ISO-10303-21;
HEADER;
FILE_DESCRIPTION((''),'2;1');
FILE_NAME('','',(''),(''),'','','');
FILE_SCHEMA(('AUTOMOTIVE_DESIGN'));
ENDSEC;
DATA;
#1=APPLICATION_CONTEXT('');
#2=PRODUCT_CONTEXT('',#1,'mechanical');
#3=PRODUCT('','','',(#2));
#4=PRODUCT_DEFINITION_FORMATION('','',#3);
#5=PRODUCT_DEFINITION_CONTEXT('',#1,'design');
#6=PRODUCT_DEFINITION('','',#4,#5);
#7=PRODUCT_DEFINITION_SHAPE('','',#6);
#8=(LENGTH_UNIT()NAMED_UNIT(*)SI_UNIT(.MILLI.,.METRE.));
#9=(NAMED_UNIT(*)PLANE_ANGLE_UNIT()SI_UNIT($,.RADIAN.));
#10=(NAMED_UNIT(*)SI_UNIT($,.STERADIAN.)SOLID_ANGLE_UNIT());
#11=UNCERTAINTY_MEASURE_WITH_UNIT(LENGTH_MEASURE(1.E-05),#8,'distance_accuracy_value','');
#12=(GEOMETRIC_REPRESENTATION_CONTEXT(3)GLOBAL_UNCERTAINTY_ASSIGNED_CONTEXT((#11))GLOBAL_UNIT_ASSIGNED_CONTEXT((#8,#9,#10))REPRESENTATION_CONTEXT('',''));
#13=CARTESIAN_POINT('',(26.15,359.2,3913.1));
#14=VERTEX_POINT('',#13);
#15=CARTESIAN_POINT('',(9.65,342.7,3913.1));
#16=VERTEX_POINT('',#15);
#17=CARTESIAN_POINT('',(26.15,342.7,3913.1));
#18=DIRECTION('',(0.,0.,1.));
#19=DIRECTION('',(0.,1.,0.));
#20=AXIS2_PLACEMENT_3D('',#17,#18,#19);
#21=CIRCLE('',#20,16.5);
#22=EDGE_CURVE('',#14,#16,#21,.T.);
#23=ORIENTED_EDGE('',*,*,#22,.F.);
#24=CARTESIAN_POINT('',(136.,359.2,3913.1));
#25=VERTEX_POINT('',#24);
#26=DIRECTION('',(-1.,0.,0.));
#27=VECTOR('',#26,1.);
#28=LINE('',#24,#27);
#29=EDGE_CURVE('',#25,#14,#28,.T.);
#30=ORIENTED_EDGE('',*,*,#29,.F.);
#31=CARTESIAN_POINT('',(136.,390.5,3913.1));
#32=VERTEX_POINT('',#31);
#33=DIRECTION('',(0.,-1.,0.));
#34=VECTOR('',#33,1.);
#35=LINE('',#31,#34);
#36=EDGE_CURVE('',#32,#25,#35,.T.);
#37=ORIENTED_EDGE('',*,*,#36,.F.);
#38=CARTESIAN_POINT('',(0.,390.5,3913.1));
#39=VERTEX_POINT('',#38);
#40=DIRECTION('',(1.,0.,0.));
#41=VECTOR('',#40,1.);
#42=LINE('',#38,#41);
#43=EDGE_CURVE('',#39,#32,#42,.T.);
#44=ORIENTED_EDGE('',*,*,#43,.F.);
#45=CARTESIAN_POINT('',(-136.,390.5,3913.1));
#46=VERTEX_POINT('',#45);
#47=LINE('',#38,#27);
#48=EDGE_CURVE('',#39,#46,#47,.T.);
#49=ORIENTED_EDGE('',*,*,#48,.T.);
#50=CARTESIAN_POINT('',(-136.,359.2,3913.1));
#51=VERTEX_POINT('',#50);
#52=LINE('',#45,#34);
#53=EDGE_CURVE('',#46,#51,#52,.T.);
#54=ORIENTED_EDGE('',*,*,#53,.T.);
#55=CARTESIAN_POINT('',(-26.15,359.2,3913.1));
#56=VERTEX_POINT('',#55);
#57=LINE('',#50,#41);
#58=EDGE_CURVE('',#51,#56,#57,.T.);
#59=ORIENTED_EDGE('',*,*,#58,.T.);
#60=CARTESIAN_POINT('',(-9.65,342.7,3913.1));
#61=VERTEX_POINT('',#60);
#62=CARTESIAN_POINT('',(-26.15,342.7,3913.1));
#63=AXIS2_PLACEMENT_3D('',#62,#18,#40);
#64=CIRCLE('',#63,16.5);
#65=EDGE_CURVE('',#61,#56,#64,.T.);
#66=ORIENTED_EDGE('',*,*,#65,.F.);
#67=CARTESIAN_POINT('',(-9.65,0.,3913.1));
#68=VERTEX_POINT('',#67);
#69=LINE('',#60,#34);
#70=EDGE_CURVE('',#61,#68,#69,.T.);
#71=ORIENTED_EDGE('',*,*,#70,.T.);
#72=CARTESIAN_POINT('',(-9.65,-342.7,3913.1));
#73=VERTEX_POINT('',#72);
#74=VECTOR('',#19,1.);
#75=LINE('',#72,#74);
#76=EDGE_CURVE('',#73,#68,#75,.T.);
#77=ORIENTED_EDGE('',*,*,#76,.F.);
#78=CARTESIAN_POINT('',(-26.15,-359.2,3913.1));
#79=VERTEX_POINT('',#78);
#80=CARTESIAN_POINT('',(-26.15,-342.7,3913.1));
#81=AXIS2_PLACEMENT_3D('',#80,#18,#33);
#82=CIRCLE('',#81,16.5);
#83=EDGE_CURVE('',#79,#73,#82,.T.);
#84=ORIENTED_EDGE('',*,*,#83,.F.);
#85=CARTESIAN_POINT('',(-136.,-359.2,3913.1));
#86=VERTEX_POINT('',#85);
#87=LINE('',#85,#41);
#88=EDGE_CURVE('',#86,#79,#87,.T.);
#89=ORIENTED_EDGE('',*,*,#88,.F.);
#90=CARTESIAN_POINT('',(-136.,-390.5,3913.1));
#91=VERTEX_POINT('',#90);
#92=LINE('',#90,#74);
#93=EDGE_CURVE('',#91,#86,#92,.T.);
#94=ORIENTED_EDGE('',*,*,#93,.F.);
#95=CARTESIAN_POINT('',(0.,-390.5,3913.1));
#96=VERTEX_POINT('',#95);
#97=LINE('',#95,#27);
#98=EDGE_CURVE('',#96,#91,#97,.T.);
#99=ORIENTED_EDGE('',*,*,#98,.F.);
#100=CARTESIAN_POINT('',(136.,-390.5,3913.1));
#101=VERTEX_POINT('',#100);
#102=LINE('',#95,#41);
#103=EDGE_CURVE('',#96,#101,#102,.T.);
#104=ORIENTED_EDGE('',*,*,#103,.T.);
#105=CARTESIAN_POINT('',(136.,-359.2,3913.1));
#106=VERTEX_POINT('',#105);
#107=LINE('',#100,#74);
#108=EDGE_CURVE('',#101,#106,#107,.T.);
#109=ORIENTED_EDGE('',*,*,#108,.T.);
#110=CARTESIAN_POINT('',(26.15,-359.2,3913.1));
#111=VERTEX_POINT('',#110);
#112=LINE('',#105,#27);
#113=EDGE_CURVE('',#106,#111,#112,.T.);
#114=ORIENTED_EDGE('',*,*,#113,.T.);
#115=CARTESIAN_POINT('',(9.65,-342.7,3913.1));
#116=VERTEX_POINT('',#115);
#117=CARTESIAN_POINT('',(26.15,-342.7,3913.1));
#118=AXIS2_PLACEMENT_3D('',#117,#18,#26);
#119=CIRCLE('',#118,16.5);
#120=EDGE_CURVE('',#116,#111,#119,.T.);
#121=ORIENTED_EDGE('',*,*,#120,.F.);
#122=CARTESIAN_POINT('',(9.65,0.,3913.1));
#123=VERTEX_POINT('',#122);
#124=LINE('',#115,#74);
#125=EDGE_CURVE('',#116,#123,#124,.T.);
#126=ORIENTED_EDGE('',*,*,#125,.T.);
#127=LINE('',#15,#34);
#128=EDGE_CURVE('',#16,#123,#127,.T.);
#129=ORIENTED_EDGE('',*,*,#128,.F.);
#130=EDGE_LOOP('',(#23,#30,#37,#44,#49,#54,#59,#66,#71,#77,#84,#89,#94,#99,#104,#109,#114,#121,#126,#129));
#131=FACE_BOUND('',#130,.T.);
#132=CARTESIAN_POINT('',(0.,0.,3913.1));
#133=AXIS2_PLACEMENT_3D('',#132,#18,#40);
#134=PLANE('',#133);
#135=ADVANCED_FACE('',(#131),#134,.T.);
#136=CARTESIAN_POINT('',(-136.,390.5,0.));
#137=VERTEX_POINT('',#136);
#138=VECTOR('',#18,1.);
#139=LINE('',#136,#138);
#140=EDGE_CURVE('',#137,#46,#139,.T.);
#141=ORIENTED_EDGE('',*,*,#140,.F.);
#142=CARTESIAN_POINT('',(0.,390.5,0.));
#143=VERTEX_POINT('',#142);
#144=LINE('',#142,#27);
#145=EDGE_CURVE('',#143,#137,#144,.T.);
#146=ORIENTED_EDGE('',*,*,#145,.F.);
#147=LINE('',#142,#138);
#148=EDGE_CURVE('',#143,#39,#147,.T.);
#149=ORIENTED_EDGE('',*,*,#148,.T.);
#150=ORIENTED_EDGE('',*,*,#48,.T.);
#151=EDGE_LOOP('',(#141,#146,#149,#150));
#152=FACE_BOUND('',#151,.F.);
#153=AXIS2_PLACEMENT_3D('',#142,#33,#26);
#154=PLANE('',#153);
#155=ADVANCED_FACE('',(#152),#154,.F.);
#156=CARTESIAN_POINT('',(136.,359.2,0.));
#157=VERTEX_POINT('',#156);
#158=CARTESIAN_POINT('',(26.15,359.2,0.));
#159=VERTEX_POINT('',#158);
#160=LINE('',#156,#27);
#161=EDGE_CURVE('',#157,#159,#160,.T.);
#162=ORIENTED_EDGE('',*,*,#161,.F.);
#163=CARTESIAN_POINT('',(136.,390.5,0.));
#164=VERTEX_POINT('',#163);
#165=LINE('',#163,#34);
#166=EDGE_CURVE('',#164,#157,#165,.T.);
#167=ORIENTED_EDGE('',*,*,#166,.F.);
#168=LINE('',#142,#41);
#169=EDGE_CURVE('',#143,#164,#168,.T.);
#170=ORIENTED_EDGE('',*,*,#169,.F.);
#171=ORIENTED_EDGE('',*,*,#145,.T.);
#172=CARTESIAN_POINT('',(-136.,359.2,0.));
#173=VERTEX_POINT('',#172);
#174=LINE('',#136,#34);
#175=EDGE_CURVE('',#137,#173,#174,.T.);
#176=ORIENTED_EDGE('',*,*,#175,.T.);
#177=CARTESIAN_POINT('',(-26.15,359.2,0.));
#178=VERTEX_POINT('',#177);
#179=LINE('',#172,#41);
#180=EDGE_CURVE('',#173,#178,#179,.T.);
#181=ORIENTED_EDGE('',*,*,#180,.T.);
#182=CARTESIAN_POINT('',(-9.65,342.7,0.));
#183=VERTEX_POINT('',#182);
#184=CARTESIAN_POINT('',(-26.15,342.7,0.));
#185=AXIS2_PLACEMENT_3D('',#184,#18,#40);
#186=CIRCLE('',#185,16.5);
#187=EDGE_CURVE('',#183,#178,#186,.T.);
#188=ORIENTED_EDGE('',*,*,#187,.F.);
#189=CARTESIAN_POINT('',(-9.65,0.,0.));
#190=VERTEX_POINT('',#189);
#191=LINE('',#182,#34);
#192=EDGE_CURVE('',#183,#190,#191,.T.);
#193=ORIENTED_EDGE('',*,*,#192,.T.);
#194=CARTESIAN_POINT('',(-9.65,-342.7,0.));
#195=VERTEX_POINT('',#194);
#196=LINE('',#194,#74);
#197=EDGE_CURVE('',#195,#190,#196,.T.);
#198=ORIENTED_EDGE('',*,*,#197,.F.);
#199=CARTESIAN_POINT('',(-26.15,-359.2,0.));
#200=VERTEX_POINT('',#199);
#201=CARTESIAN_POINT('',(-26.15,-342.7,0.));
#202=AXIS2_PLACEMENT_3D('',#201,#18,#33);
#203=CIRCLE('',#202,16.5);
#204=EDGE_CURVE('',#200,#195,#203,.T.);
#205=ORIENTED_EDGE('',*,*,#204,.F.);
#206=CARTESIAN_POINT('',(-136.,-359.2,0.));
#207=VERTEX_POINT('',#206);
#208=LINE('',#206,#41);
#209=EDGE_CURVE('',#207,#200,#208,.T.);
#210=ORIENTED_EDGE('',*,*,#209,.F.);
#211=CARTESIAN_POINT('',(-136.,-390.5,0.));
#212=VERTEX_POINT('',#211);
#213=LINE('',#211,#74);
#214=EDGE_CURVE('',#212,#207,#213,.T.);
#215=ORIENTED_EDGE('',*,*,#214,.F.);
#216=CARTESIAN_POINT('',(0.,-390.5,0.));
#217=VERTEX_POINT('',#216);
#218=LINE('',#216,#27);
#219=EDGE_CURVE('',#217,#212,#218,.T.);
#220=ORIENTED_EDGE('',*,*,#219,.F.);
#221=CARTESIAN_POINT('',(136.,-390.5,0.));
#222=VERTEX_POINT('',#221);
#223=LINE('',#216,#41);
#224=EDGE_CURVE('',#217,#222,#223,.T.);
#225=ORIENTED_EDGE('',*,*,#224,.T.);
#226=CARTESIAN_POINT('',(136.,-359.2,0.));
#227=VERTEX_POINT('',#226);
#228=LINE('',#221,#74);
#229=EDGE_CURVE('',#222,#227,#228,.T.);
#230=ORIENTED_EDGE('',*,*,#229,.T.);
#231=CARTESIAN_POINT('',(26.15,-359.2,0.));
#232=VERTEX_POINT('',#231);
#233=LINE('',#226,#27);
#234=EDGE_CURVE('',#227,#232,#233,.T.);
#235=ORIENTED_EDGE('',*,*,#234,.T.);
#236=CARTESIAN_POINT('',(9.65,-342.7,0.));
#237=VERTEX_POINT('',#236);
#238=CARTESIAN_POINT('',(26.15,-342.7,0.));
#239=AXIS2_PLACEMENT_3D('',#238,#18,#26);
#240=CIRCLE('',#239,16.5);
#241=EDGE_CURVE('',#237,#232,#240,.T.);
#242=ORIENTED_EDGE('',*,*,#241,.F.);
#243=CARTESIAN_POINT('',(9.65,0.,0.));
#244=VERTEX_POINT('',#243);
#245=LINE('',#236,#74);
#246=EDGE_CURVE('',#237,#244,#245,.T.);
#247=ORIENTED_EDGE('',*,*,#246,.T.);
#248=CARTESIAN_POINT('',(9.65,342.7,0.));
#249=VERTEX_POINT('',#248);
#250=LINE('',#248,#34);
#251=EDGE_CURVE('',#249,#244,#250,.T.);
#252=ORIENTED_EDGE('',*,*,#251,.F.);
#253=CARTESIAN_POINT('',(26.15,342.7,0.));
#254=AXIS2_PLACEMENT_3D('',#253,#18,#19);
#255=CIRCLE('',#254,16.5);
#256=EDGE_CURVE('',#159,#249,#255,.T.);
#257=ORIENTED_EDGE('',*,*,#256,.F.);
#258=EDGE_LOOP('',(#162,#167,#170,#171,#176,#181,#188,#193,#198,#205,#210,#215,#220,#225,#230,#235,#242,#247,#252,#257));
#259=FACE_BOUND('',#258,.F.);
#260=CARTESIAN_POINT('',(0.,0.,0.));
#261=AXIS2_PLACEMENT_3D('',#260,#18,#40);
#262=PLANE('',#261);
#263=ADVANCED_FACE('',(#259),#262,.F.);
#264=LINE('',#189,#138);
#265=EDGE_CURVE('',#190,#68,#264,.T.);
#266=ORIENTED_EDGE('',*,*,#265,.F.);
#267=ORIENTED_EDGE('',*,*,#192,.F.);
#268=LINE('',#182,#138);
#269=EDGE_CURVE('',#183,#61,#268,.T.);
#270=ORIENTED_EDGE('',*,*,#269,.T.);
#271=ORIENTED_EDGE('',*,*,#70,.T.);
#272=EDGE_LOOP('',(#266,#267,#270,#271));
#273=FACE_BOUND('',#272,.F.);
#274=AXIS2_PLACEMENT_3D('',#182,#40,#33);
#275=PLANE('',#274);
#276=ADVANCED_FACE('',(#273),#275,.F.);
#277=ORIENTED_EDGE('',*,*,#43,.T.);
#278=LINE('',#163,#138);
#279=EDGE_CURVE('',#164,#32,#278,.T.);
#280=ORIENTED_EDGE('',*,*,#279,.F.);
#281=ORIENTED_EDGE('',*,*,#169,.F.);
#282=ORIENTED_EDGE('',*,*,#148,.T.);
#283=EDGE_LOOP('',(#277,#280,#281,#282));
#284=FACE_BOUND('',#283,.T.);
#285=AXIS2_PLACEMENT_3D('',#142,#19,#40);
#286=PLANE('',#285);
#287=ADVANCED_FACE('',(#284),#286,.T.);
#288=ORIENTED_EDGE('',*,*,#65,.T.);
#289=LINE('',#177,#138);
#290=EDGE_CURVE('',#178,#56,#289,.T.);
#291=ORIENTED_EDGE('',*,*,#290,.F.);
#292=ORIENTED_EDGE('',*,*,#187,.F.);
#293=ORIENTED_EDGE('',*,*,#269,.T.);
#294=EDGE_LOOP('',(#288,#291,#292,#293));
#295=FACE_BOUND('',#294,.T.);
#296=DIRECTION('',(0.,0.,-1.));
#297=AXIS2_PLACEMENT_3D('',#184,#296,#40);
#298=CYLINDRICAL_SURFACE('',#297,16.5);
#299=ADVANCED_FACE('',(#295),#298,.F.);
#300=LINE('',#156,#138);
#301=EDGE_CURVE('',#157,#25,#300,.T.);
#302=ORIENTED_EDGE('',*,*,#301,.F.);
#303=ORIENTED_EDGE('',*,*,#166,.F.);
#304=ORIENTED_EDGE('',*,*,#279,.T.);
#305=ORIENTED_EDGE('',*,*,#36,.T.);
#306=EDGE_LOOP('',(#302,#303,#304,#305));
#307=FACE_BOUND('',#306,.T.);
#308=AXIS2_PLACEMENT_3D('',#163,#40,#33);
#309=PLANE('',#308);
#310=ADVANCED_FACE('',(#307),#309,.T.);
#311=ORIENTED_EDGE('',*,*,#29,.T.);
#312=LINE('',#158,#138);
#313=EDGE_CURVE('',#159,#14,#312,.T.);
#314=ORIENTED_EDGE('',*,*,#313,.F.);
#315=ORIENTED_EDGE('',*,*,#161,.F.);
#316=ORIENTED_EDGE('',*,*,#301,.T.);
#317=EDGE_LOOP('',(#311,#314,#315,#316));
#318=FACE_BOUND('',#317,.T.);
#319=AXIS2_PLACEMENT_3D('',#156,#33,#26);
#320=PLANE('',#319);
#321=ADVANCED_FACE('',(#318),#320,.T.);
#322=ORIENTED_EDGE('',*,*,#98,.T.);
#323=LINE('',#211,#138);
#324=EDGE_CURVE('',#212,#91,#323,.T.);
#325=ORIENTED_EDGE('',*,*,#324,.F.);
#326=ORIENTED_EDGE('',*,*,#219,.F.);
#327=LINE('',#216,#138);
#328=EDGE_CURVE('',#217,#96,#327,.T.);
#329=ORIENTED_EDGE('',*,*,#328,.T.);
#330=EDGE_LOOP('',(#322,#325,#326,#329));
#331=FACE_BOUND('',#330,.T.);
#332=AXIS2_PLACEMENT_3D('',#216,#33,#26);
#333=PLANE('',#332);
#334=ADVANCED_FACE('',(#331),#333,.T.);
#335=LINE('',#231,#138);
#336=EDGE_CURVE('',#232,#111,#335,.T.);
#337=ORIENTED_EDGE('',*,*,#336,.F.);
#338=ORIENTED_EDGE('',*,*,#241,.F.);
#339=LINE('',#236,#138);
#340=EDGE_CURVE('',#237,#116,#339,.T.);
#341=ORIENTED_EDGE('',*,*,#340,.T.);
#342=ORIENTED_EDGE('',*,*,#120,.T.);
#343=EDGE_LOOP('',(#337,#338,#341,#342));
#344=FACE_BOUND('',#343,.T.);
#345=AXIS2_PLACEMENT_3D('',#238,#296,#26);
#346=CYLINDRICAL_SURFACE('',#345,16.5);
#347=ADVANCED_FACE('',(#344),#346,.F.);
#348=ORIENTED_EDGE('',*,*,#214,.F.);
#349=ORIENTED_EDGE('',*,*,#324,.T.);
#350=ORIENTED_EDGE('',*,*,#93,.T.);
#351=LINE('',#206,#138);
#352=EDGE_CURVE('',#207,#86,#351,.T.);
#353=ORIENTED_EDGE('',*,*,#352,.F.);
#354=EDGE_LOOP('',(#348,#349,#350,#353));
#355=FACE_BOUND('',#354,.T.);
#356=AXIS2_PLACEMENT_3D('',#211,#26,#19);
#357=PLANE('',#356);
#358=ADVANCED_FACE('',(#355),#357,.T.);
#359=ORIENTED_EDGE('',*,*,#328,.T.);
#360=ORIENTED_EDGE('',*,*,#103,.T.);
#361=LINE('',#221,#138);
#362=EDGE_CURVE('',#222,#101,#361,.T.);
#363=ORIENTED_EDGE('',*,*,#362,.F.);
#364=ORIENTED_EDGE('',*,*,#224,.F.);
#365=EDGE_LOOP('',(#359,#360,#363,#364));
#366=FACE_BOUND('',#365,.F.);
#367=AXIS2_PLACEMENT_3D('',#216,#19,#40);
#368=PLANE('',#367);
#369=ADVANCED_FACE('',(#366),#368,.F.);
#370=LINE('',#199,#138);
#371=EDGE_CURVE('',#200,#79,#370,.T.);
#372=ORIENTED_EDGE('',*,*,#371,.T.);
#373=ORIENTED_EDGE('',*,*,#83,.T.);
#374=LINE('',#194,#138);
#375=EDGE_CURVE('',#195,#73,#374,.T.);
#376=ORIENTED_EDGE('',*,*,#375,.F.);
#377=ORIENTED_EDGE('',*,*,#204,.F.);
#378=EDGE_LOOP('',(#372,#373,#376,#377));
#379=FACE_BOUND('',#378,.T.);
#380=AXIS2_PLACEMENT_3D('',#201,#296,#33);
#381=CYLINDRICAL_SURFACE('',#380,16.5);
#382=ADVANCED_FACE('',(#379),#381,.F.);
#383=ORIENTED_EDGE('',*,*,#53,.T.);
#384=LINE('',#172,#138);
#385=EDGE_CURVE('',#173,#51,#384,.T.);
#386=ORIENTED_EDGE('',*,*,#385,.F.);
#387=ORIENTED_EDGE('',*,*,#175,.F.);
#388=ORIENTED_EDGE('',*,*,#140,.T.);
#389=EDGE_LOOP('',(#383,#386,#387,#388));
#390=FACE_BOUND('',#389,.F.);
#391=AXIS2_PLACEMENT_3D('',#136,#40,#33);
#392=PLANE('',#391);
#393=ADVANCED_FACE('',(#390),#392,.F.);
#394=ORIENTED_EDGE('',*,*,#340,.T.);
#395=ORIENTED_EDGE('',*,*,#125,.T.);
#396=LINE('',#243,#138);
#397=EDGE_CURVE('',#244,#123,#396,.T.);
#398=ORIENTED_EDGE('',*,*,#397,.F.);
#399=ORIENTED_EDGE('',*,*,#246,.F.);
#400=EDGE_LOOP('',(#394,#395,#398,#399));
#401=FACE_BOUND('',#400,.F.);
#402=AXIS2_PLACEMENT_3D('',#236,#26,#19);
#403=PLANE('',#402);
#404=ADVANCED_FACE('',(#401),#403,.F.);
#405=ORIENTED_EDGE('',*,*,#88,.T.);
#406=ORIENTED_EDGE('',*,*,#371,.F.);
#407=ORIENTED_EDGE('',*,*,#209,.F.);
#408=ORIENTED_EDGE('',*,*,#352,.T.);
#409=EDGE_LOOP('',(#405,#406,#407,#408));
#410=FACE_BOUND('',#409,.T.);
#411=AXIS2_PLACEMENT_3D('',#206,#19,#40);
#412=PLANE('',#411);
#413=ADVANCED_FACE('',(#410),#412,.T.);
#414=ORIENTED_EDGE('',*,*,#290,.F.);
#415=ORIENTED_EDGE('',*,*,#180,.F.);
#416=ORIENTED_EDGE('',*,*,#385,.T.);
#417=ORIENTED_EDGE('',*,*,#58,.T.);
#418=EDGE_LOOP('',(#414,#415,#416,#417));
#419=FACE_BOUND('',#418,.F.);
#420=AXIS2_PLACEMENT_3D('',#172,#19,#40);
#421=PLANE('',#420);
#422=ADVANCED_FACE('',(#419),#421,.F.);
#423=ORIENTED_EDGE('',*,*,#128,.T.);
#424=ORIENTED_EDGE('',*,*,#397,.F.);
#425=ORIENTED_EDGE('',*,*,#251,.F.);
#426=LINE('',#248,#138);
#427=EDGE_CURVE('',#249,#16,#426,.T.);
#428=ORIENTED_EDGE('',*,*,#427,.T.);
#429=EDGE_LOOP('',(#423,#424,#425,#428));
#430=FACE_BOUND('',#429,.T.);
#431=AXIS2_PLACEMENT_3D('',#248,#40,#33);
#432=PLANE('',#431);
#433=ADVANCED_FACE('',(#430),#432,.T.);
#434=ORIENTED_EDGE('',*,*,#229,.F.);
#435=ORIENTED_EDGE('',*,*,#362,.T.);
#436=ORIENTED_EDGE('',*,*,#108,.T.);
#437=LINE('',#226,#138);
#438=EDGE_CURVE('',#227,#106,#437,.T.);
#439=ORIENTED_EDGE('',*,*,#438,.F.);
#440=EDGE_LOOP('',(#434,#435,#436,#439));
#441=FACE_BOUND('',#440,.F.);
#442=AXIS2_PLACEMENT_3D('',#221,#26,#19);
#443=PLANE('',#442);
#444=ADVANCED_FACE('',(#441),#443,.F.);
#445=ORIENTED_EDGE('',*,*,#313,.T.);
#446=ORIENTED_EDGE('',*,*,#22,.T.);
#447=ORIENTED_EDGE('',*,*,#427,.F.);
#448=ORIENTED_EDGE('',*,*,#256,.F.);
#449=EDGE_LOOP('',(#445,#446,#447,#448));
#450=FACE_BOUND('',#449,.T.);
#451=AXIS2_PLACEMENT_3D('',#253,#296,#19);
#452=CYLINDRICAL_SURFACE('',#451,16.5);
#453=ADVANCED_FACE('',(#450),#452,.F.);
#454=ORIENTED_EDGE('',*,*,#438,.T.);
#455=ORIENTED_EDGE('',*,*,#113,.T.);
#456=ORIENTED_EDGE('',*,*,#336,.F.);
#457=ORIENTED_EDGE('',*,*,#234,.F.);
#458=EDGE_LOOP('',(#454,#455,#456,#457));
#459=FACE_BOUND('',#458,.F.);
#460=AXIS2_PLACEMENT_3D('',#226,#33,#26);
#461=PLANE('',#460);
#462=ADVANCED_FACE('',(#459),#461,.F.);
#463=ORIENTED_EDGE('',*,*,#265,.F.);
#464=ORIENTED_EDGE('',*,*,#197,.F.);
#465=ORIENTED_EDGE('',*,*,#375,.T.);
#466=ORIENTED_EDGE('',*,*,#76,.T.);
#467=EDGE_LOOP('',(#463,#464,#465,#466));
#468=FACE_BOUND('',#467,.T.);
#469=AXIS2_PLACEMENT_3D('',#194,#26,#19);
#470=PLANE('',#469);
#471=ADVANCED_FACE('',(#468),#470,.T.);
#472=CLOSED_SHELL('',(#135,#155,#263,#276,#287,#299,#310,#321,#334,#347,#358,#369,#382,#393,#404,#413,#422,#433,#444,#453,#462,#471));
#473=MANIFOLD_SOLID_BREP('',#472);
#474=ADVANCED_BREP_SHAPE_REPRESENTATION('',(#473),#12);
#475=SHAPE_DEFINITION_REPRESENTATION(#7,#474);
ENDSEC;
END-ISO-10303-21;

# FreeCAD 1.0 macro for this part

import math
import FreeCAD as App
import Part
import Sketcher

doc = App.newDocument("Part")
body = doc.addObject("PartDesign::Body", "Body")

# Sketch on XY plane
sketch1 = body.newObject("Sketcher::SketchObject", "Sketch")
sketch1.AttachmentSupport = (doc.getObject("XY_Plane"), [""])
sketch1.MapMode = "FlatFace"
sketch1.addGeometry(Part.LineSegment(App.Vector(-136, -359.2, 0), App.Vector(-136, -390.5, 0)), False)
sketch1.addGeometry(Part.LineSegment(App.Vector(-136, -390.5, 0), App.Vector(136, -390.5, 0)), False)
sketch1.addGeometry(Part.LineSegment(App.Vector(136, -390.5, 0), App.Vector(136, -359.2, 0)), False)
sketch1.addGeometry(Part.LineSegment(App.Vector(136, -359.2, 0), App.Vector(26.15, -359.2, 0)), False)
sketch1.addGeometry(Part.ArcOfCircle(Part.Circle(App.Vector(26.15, -342.7, 0), App.Vector(0, 0, 1), 16.5), math.radians(180), math.radians(270)), False)
sketch1.addGeometry(Part.LineSegment(App.Vector(9.65, -342.7, 0), App.Vector(9.65, 342.7, 0)), False)
sketch1.addGeometry(Part.ArcOfCircle(Part.Circle(App.Vector(26.15, 342.7, 0), App.Vector(0, 0, 1), 16.5), math.radians(90), math.radians(180)), False)
sketch1.addGeometry(Part.LineSegment(App.Vector(26.15, 359.2, 0), App.Vector(136, 359.2, 0)), False)
sketch1.addGeometry(Part.LineSegment(App.Vector(136, 359.2, 0), App.Vector(136, 390.5, 0)), False)
sketch1.addGeometry(Part.LineSegment(App.Vector(136, 390.5, 0), App.Vector(-136, 390.5, 0)), False)
sketch1.addGeometry(Part.LineSegment(App.Vector(-136, 390.5, 0), App.Vector(-136, 359.2, 0)), False)
sketch1.addGeometry(Part.LineSegment(App.Vector(-136, 359.2, 0), App.Vector(-26.15, 359.2, 0)), False)
sketch1.addGeometry(Part.ArcOfCircle(Part.Circle(App.Vector(-26.15, 342.7, 0), App.Vector(0, 0, 1), 16.5), math.radians(0), math.radians(90)), False)
sketch1.addGeometry(Part.LineSegment(App.Vector(-9.65, 342.7, 0), App.Vector(-9.65, -342.7, 0)), False)
sketch1.addGeometry(Part.ArcOfCircle(Part.Circle(App.Vector(-26.15, -342.7, 0), App.Vector(0, 0, 1), 16.5), math.radians(-90), math.radians(0)), False)
sketch1.addGeometry(Part.LineSegment(App.Vector(-26.15, -359.2, 0), App.Vector(-136, -359.2, 0)), False)
sketch1.addConstraint(Sketcher.Constraint("Coincident", 0, 2, 1, 1))
sketch1.addConstraint(Sketcher.Constraint("Coincident", 1, 2, 2, 1))
sketch1.addConstraint(Sketcher.Constraint("Coincident", 2, 2, 3, 1))
sketch1.addConstraint(Sketcher.Constraint("Tangent", 3, 2, 4, 2))
sketch1.addConstraint(Sketcher.Constraint("Tangent", 4, 1, 5, 1))
sketch1.addConstraint(Sketcher.Constraint("Tangent", 5, 2, 6, 2))
sketch1.addConstraint(Sketcher.Constraint("Tangent", 6, 1, 7, 1))
sketch1.addConstraint(Sketcher.Constraint("Coincident", 7, 2, 8, 1))
sketch1.addConstraint(Sketcher.Constraint("Coincident", 8, 2, 9, 1))
sketch1.addConstraint(Sketcher.Constraint("Coincident", 9, 2, 10, 1))
sketch1.addConstraint(Sketcher.Constraint("Coincident", 10, 2, 11, 1))
sketch1.addConstraint(Sketcher.Constraint("Tangent", 11, 2, 12, 2))
sketch1.addConstraint(Sketcher.Constraint("Tangent", 12, 1, 13, 1))
sketch1.addConstraint(Sketcher.Constraint("Tangent", 13, 2, 14, 2))
sketch1.addConstraint(Sketcher.Constraint("Tangent", 14, 1, 15, 1))
sketch1.addConstraint(Sketcher.Constraint("Coincident", 15, 2, 0, 1))
sketch1.addConstraint(Sketcher.Constraint("Vertical", 0))
sketch1.addConstraint(Sketcher.Constraint("Horizontal", 1))
sketch1.addConstraint(Sketcher.Constraint("Vertical", 2))
sketch1.addConstraint(Sketcher.Constraint("Horizontal", 3))
sketch1.addConstraint(Sketcher.Constraint("Vertical", 5))
sketch1.addConstraint(Sketcher.Constraint("Horizontal", 7))
sketch1.addConstraint(Sketcher.Constraint("Vertical", 8))
sketch1.addConstraint(Sketcher.Constraint("Horizontal", 9))
sketch1.addConstraint(Sketcher.Constraint("Vertical", 10))
sketch1.addConstraint(Sketcher.Constraint("Horizontal", 11))
sketch1.addConstraint(Sketcher.Constraint("Vertical", 13))
sketch1.addConstraint(Sketcher.Constraint("Horizontal", 15))
sketch1.addConstraint(Sketcher.Constraint("Equal", 4, 6))
sketch1.addConstraint(Sketcher.Constraint("Equal", 6, 12))
sketch1.addConstraint(Sketcher.Constraint("Equal", 12, 14))
sketch1.addConstraint(Sketcher.Constraint("Symmetric", 4, 3, 12, 3, -1, 1))
sketch1.addConstraint(Sketcher.Constraint("Symmetric", 0, 2, 8, 2, -1, 1))
sketch1.addConstraint(Sketcher.Constraint("Symmetric", 7, 2, 10, 2, -2))
sketch1.addConstraint(Sketcher.Constraint("Symmetric", 2, 2, 15, 2, -2))
sketch1.addConstraint(Sketcher.Constraint("Radius", 4, 16.5))
sketch1.addConstraint(Sketcher.Constraint("DistanceY", 0, 2, 0, 1, 31.3))
sketch1.addConstraint(Sketcher.Constraint("DistanceX", 0, 2, -1, 1, 136.0))
sketch1.addConstraint(Sketcher.Constraint("DistanceY", 0, 2, -1, 1, 390.5))
sketch1.addConstraint(Sketcher.Constraint("DistanceX", -1, 1, 4, 1, 9.65))
pad1 = body.newObject("PartDesign::Pad", "Pad")
pad1.Profile = sketch1
pad1.Length = 3913.1

doc.recompute()
